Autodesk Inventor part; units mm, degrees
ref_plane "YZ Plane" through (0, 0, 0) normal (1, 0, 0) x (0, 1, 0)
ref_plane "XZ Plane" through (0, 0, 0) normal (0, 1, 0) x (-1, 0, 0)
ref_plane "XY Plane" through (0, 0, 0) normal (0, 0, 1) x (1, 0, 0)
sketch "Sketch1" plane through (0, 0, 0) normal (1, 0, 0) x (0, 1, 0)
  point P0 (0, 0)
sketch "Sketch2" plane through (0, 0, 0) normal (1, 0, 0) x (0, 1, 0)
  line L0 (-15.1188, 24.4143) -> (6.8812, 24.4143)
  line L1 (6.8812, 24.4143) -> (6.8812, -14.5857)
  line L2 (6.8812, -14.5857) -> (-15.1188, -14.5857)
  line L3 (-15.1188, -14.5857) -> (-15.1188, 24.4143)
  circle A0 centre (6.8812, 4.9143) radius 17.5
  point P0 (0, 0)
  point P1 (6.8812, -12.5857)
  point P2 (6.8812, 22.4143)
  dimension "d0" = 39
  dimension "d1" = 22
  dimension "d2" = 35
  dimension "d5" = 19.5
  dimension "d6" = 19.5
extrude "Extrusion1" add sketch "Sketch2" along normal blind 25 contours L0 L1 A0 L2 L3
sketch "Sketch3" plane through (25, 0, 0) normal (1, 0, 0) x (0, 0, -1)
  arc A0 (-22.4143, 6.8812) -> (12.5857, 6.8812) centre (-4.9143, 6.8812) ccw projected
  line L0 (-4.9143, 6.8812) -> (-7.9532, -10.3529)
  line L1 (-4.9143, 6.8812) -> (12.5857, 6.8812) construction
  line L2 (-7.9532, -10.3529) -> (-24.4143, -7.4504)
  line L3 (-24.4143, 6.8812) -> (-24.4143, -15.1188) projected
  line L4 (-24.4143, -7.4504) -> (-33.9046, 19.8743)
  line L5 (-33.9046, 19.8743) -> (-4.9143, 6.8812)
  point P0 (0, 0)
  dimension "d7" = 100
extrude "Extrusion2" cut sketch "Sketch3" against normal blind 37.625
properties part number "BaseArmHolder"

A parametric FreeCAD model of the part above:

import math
import FreeCAD as App
import Part
import Sketcher
from FreeCAD import Vector
Q = App.Units.Quantity

doc = App.newDocument("Part")
body = doc.addObject("PartDesign::Body", "Body")

sketch1 = body.newObject("Sketcher::SketchObject", "Sketch")
sketch1.AttachmentSupport = (doc.getObject("YZ_Plane"), [""])
sketch1.MapMode = "FlatFace"
sketch1.addGeometry([
    Part.LineSegment(Vector(6.9, 24.4, 0), Vector(-15.1, 24.4, 0)),
    Part.LineSegment(Vector(-15.1, 24.4, 0), Vector(-15.1, -14.6, 0)),
    Part.LineSegment(Vector(-15.1, -14.6, 0), Vector(6.9, -14.6, 0)),
    Part.LineSegment(Vector(6.9, -14.6, 0), Vector(6.9, -12.6, 0)),
    Part.ArcOfCircle(Part.Circle(Vector(6.9, 4.9, 0), Vector(0, 0, 1), 17.5), math.radians(90), math.radians(270)),
    Part.LineSegment(Vector(6.9, 22.4, 0), Vector(6.9, 24.4, 0)),
], False)
sketch1.addConstraint([
    Sketcher.Constraint("Coincident", 0, 2, 1, 1),
    Sketcher.Constraint("Coincident", 1, 2, 2, 1),
    Sketcher.Constraint("Coincident", 2, 2, 3, 1),
    Sketcher.Constraint("Coincident", 3, 2, 4, 2),
    Sketcher.Constraint("Coincident", 4, 1, 5, 1),
    Sketcher.Constraint("Coincident", 5, 2, 0, 1),
    Sketcher.Constraint("Horizontal", 0),
    Sketcher.Constraint("Vertical", 1),
    Sketcher.Constraint("Horizontal", 2),
    Sketcher.Constraint("Vertical", 3),
    Sketcher.Constraint("Vertical", 5),
    Sketcher.Constraint("Vertical", 4, 3, 2, 2),
    Sketcher.Constraint("Vertical", 3, 2, 4, 1),
    Sketcher.Constraint("Equal", 3, 5),
    Sketcher.Constraint("Radius", 4, Q("17.5 mm")),
    Sketcher.Constraint("DistanceX", 0, 2, 0, 1, Q("22 mm")),
    Sketcher.Constraint("DistanceY", 1, 2, 1, 1, Q("39 mm")),
    Sketcher.Constraint("DistanceX", -1, 1, 4, 3, Q("6.8812 mm")),
    Sketcher.Constraint("DistanceY", -1, 1, 4, 3, Q("4.9143 mm")),
])
pad1 = body.newObject("PartDesign::Pad", "Pad")
pad1.Profile = sketch1
pad1.Length = 25

sketch2 = body.newObject("Sketcher::SketchObject", "Sketch001")
sketch2.AttachmentSupport = (doc.getObject("YZ_Plane"), [""])
sketch2.MapMode = "FlatFace"
sketch2.AttachmentOffset = App.Placement(Vector(0, 0, 25), App.Rotation())
sketch2.addGeometry([
    Part.LineSegment(Vector(-10, 8, 0), Vector(7, 5, 0)),
    Part.LineSegment(Vector(7, 5, 0), Vector(20, 34, 0)),
    Part.LineSegment(Vector(20, 34, 0), Vector(-7, 24, 0)),
    Part.LineSegment(Vector(-7, 24, 0), Vector(-10, 8, 0)),
], False)
sketch2.addConstraint([
    Sketcher.Constraint("Coincident", 0, 2, 1, 1),
    Sketcher.Constraint("Coincident", 1, 2, 2, 1),
    Sketcher.Constraint("Coincident", 2, 2, 3, 1),
    Sketcher.Constraint("Coincident", 3, 2, 0, 1),
    Sketcher.Constraint("Perpendicular", 0, 3),
    Sketcher.Constraint("Angle", 3, Q("-99.9999 deg")),
    Sketcher.Constraint("Distance", 0, Q("17.5 mm")),
    Sketcher.Constraint("DistanceY", 0, 2, 2, 2, Q("19.5 mm")),
    Sketcher.Constraint("DistanceX", 3, 2, -1, 1, Q("10.353 mm")),
    Sketcher.Constraint("DistanceX", 0, 2, 1, 2, Q("12.993 mm")),
    Sketcher.Constraint("Distance", 1, Q("31.7688 mm")),
    Sketcher.Constraint("DistanceY", -1, 1, 0, 2, Q("4.9143 mm")),
])
pocket1 = body.newObject("PartDesign::Pocket", "Pocket")
pocket1.Profile = sketch2
pocket1.Length = 37.625

doc.recompute()
